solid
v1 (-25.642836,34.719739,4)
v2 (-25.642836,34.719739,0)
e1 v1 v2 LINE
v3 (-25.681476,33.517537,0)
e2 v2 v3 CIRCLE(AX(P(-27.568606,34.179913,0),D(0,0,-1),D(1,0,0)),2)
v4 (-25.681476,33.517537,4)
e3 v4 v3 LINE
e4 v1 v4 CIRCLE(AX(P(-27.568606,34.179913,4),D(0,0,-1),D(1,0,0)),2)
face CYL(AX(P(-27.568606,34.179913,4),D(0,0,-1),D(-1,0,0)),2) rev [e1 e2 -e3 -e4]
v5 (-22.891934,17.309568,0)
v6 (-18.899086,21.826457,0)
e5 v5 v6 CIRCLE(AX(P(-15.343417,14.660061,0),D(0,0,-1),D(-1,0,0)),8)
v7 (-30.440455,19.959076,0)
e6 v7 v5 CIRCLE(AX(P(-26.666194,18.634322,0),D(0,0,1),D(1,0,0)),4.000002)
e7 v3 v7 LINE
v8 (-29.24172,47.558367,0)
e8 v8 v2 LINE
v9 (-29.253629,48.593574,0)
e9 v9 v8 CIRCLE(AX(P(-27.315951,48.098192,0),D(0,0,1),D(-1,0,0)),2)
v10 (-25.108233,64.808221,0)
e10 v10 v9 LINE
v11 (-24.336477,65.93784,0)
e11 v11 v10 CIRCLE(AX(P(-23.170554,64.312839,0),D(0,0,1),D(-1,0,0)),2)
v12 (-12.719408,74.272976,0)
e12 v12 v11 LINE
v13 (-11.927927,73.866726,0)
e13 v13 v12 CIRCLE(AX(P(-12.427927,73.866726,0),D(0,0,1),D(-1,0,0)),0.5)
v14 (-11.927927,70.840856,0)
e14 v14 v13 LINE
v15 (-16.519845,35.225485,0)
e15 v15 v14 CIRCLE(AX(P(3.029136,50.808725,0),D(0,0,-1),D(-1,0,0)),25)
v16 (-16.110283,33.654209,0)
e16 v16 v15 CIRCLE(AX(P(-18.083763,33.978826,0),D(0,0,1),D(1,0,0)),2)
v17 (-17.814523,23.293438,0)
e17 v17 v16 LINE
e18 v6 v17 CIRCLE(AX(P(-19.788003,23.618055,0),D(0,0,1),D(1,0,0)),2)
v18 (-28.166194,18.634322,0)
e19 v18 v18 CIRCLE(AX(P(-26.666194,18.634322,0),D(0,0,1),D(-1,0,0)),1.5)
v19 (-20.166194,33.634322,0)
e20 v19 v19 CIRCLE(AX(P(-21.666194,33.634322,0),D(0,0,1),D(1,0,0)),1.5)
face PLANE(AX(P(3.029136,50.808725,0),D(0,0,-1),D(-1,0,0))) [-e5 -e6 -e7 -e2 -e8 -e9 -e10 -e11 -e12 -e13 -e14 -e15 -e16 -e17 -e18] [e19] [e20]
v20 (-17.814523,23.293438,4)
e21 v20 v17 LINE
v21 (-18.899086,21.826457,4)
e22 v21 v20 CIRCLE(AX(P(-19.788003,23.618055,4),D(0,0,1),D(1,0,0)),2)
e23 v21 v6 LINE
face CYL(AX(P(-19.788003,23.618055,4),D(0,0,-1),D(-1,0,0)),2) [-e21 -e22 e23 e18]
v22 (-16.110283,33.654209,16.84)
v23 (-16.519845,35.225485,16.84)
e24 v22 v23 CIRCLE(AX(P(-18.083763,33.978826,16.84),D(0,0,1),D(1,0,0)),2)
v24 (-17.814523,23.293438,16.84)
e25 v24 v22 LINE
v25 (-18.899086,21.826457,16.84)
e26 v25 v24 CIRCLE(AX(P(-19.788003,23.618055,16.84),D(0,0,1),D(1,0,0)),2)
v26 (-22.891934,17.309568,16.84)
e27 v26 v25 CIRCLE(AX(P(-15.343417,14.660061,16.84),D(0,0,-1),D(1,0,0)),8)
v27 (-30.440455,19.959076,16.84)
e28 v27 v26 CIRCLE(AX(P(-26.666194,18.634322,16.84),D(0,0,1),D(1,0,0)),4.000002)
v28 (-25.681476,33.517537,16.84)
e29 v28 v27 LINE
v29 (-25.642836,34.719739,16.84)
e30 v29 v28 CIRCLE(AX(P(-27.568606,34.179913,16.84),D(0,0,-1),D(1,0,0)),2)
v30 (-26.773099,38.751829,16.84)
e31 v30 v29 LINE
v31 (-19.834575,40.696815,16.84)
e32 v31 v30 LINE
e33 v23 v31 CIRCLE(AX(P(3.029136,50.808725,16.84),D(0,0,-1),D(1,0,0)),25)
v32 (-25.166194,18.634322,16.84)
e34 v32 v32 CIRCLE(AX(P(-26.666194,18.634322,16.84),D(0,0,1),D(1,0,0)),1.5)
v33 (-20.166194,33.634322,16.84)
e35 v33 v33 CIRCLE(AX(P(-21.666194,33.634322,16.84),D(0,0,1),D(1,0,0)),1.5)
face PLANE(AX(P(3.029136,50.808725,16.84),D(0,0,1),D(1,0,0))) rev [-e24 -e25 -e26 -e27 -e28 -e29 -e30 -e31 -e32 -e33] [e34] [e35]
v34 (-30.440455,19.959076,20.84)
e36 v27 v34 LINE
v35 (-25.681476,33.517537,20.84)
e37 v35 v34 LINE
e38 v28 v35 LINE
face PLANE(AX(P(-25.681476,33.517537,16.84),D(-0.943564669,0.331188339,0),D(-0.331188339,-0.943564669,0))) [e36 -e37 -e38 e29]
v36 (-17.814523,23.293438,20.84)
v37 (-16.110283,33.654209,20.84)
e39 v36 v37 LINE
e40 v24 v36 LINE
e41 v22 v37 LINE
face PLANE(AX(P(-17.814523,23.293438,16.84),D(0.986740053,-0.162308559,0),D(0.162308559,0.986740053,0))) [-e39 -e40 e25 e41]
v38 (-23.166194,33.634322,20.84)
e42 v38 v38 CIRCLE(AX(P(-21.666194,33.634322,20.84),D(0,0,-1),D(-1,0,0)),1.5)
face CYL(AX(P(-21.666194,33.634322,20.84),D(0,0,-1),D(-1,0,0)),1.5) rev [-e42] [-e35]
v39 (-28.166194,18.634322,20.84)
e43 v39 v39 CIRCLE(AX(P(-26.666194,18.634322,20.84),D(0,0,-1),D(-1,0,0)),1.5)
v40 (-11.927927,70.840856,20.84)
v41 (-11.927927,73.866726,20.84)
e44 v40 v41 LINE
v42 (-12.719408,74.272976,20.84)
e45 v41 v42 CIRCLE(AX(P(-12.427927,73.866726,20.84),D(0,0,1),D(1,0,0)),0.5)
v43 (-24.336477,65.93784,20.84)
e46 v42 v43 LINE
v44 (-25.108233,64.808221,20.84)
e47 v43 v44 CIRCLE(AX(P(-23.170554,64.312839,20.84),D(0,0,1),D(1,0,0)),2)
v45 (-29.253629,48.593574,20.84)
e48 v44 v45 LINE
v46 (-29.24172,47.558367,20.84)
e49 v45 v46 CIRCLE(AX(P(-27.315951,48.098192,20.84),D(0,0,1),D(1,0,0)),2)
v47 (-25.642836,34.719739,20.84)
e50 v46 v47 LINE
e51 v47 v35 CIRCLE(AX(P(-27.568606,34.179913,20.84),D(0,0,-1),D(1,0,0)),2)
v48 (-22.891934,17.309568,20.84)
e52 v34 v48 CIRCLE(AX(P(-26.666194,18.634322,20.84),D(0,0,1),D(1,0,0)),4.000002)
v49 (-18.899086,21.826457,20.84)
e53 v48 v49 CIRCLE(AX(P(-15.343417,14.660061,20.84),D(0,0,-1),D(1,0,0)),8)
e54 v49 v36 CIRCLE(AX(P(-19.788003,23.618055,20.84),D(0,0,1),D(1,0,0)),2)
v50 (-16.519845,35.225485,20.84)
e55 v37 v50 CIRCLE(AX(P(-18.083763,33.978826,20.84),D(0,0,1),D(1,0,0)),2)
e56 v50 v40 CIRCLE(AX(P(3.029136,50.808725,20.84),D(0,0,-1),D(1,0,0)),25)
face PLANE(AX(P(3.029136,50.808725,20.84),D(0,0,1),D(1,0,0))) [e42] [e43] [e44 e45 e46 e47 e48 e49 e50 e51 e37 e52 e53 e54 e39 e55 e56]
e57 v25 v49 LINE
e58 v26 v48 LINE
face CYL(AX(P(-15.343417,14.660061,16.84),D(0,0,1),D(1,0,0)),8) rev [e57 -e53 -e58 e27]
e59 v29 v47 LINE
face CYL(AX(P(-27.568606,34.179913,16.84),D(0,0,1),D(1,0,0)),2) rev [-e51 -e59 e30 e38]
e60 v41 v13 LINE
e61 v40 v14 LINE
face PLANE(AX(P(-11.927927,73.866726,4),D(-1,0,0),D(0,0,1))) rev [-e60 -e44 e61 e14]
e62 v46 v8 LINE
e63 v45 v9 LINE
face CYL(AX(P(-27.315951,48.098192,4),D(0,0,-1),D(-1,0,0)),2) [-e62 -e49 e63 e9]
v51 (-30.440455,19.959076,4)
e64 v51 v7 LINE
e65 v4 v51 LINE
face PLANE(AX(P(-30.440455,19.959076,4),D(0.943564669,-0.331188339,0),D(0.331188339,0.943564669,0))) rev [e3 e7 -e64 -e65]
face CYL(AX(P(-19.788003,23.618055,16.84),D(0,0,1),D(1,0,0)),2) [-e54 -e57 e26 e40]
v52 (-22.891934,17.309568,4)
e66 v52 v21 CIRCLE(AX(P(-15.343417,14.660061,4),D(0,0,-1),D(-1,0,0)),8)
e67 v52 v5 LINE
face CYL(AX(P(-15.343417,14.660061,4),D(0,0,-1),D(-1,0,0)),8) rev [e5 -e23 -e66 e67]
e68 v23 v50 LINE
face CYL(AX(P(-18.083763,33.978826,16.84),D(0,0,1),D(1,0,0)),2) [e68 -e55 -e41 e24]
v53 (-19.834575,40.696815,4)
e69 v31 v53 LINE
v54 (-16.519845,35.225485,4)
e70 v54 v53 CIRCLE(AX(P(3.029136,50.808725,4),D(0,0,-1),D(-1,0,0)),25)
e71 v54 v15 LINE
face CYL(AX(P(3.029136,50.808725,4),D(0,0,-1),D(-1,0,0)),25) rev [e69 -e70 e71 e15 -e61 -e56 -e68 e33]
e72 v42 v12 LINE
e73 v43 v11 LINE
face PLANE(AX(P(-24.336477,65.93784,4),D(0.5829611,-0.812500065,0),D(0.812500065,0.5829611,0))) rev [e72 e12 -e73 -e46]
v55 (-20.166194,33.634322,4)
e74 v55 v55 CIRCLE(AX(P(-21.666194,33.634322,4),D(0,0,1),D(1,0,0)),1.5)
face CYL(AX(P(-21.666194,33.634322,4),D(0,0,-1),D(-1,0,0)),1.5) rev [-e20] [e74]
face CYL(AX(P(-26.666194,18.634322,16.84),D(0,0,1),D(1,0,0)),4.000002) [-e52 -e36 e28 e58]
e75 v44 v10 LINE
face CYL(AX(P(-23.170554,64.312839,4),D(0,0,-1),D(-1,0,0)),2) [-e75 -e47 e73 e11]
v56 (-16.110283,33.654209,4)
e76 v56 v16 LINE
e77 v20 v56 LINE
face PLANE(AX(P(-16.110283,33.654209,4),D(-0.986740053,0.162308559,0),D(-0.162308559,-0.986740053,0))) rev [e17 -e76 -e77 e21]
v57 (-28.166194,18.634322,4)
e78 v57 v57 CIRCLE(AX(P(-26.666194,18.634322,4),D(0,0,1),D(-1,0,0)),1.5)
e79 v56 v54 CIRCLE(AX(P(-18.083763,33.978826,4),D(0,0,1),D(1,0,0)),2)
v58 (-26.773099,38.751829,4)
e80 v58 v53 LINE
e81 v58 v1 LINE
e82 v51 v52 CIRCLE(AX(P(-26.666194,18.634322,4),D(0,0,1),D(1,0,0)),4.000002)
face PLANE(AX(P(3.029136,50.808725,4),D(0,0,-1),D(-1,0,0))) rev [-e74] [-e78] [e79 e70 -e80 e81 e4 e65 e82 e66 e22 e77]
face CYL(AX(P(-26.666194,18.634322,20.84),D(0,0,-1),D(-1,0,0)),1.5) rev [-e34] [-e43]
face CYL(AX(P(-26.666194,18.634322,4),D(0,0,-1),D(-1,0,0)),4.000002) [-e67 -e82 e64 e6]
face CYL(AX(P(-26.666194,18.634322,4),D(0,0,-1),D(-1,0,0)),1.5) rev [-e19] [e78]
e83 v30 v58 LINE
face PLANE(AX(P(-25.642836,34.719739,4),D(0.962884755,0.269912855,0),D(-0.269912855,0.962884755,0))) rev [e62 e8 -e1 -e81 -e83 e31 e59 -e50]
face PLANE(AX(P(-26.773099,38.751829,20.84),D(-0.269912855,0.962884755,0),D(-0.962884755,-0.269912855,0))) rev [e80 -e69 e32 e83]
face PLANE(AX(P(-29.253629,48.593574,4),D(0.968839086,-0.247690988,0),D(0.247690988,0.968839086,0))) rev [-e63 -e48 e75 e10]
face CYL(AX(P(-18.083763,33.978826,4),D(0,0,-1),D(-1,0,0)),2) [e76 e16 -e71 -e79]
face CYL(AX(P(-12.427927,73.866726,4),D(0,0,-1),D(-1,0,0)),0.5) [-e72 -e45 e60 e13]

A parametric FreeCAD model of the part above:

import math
import FreeCAD as App
import Part
import Sketcher

doc = App.newDocument("Part")
body = doc.addObject("PartDesign::Body", "Body")

sketch1 = body.newObject("Sketcher::SketchObject", "Sketch")
sketch1.AttachmentSupport = (doc.getObject("XY_Plane"), [""])
sketch1.MapMode = "FlatFace"
sketch1.addGeometry([
    Part.LineSegment(App.Vector(-17.814523, 23.293438, 0), App.Vector(-16.110283, 33.654209, 0)),
    Part.ArcOfCircle(Part.Circle(App.Vector(-18.083763, 33.978826, 0), App.Vector(0, 0, 1), 2), math.radians(-9.340919), math.radians(38.55969)),
    Part.ArcOfCircle(Part.Circle(App.Vector(3.029136, 50.808725, 0), App.Vector(0, 0, 1), 25), math.radians(126.746991), math.radians(218.55969)),
    Part.LineSegment(App.Vector(-11.927927, 70.840856, 0), App.Vector(-11.927927, 73.866726, 0)),
    Part.ArcOfCircle(Part.Circle(App.Vector(-12.427927, 73.866726, 0), App.Vector(0, 0, 1), 0.5), math.radians(0), math.radians(125.659081)),
    Part.LineSegment(App.Vector(-12.719408, 74.272976, 0), App.Vector(-24.336477, 65.93784, 0)),
    Part.ArcOfCircle(Part.Circle(App.Vector(-23.170554, 64.312839, 0), App.Vector(0, 0, 1), 2), math.radians(125.659081), math.radians(165.659081)),
    Part.LineSegment(App.Vector(-25.108233, 64.808221, 0), App.Vector(-29.253629, 48.593574, 0)),
    Part.ArcOfCircle(Part.Circle(App.Vector(-27.315951, 48.098192, 0), App.Vector(0, 0, 1), 2), math.radians(165.659081), math.radians(195.659081)),
    Part.LineSegment(App.Vector(-29.24172, 47.558367, 0), App.Vector(-25.642836, 34.719739, 0)),
    Part.ArcOfCircle(Part.Circle(App.Vector(-27.568606, 34.179913, 0), App.Vector(0, 0, 1), 2), math.radians(-19.340919), math.radians(15.659081)),
    Part.LineSegment(App.Vector(-25.681476, 33.517537, 0), App.Vector(-30.440455, 19.959076, 0)),
    Part.ArcOfCircle(Part.Circle(App.Vector(-26.666194, 18.634322, 0), App.Vector(0, 0, 1), 4.000002), math.radians(160.659081), math.radians(340.659081)),
    Part.ArcOfCircle(Part.Circle(App.Vector(-15.343417, 14.660061, 0), App.Vector(0, 0, 1), 8), math.radians(116.388706), math.radians(160.659081)),
    Part.ArcOfCircle(Part.Circle(App.Vector(-19.788003, 23.618055, 0), App.Vector(0, 0, 1), 2), math.radians(-63.611294), math.radians(-9.340919)),
    Part.Circle(App.Vector(-26.666194, 18.634322, 0), App.Vector(0, 0, 1), 1.5),
    Part.Circle(App.Vector(-21.666194, 33.634322, 0), App.Vector(0, 0, 1), 1.5),
], False)
sketch1.addConstraint([
    Sketcher.Constraint("Tangent", 0, 2, 1, 1),
    Sketcher.Constraint("Tangent", 1, 2, 2, 2),
    Sketcher.Constraint("Coincident", 2, 1, 3, 1),
    Sketcher.Constraint("Tangent", 3, 2, 4, 1),
    Sketcher.Constraint("Tangent", 4, 2, 5, 1),
    Sketcher.Constraint("Tangent", 5, 2, 6, 1),
    Sketcher.Constraint("Tangent", 6, 2, 7, 1),
    Sketcher.Constraint("Tangent", 7, 2, 8, 1),
    Sketcher.Constraint("Tangent", 8, 2, 9, 1),
    Sketcher.Constraint("Tangent", 9, 2, 10, 2),
    Sketcher.Constraint("Tangent", 10, 1, 11, 1),
    Sketcher.Constraint("Tangent", 11, 2, 12, 1),
    Sketcher.Constraint("Tangent", 12, 2, 13, 2),
    Sketcher.Constraint("Tangent", 13, 1, 14, 1),
    Sketcher.Constraint("Tangent", 14, 2, 0, 1),
    Sketcher.Constraint("Vertical", 3),
    Sketcher.Constraint("Coincident", 15, 3, 12, 3),
    Sketcher.Constraint("Equal", 1, 6),
    Sketcher.Constraint("Equal", 6, 8),
    Sketcher.Constraint("Equal", 8, 10),
    Sketcher.Constraint("Equal", 10, 14),
    Sketcher.Constraint("Equal", 15, 16),
    Sketcher.Constraint("Diameter", 15, 3.0),
    Sketcher.Constraint("Radius", 1, 2.0),
    Sketcher.Constraint("Radius", 2, 25.0),
    Sketcher.Constraint("Radius", 12, 4.000002),
    Sketcher.Constraint("Radius", 13, 8.0),
    Sketcher.Constraint("Radius", 4, 0.5),
    Sketcher.Constraint("DistanceX", 12, 3, 16, 3, 5.0),
    Sketcher.Constraint("DistanceY", 12, 3, 16, 3, 15.0),
    Sketcher.Constraint("Distance", 0, 10.5),
    Sketcher.Constraint("DistanceY", 2, 3, 4, 3, 23.058001),
    Sketcher.Constraint("DistanceY", 6, 3, 5, 2, 1.625),
    Sketcher.Constraint("DistanceY", 3, 1, 3, 2, 3.02587),
    Sketcher.Constraint("DistanceX", 1, 3, 2, 3, 21.112899),
    Sketcher.Constraint("DistanceY", 13, 1, 14, 3, 1.791599),
    Sketcher.Constraint("Distance", 5, 14.29793),
    Sketcher.Constraint("Distance", 7, 16.736161),
    Sketcher.Constraint("DistanceY", -1, 1, 6, 3, 64.312839),
    Sketcher.Constraint("DistanceX", 8, 3, -1, 1, 27.315951),
    Sketcher.Constraint("DistanceY", -1, 1, 13, 3, 14.660061),
    Sketcher.Constraint("DistanceY", -1, 1, 6, 2, 64.808221),
    Sketcher.Constraint("DistanceX", 8, 2, -1, 1, 29.24172),
    Sketcher.Constraint("DistanceY", -1, 1, 9, 2, 34.719739),
    Sketcher.Constraint("DistanceY", -1, 1, 12, 2, 17.309568),
])
pad1 = body.newObject("PartDesign::Pad", "Pad")
pad1.Profile = sketch1
pad1.Length = 4

sketch2 = body.newObject("Sketcher::SketchObject", "Sketch001")
sketch2.AttachmentSupport = (doc.getObject("XY_Plane"), [""])
sketch2.MapMode = "FlatFace"
sketch2.addGeometry([
    Part.LineSegment(App.Vector(-26.773099, 38.751829, 0), App.Vector(-19.834575, 40.696815, 0)),
    Part.ArcOfCircle(Part.Circle(App.Vector(3.029136, 50.808725, 0), App.Vector(0, 0, 1), 25), math.radians(126.746991), math.radians(203.858321)),
    Part.LineSegment(App.Vector(-11.927927, 70.840856, 0), App.Vector(-11.927927, 73.866726, 0)),
    Part.ArcOfCircle(Part.Circle(App.Vector(-12.427927, 73.866726, 0), App.Vector(0, 0, 1), 0.5), math.radians(0), math.radians(125.659081)),
    Part.LineSegment(App.Vector(-12.719408, 74.272976, 0), App.Vector(-24.336477, 65.93784, 0)),
    Part.ArcOfCircle(Part.Circle(App.Vector(-23.170554, 64.312839, 0), App.Vector(0, 0, 1), 2), math.radians(125.659081), math.radians(165.659081)),
    Part.LineSegment(App.Vector(-25.108233, 64.808221, 0), App.Vector(-29.253629, 48.593574, 0)),
    Part.ArcOfCircle(Part.Circle(App.Vector(-27.315951, 48.098192, 0), App.Vector(0, 0, 1), 2), math.radians(165.659081), math.radians(195.659081)),
    Part.LineSegment(App.Vector(-29.24172, 47.558367, 0), App.Vector(-26.773099, 38.751829, 0)),
], False)
sketch2.addConstraint([
    Sketcher.Constraint("Coincident", 0, 2, 1, 2),
    Sketcher.Constraint("Coincident", 1, 1, 2, 1),
    Sketcher.Constraint("Coincident", 2, 2, 3, 1),
    Sketcher.Constraint("Coincident", 3, 2, 4, 1),
    Sketcher.Constraint("Coincident", 4, 2, 5, 1),
    Sketcher.Constraint("Coincident", 5, 2, 6, 1),
    Sketcher.Constraint("Coincident", 6, 2, 7, 1),
    Sketcher.Constraint("Coincident", 7, 2, 8, 1),
    Sketcher.Constraint("Coincident", 8, 2, 0, 1),
    Sketcher.Constraint("Vertical", 2),
    Sketcher.Constraint("Radius", 1, 25.0),
    Sketcher.Constraint("Radius", 5, 2.0),
    Sketcher.Constraint("Radius", 7, 2.0),
    Sketcher.Constraint("Radius", 3, 0.5),
    Sketcher.Constraint("DistanceY", 1, 3, 3, 3, 23.058001),
    Sketcher.Constraint("DistanceY", 1, 3, 2, 2, 23.058001),
    Sketcher.Constraint("DistanceY", 5, 3, 4, 2, 1.625),
    Sketcher.Constraint("DistanceY", 2, 1, 2, 2, 3.02587),
    Sketcher.Constraint("DistanceX", 8, 2, -1, 1, 26.773099),
    Sketcher.Constraint("Distance", 4, 14.29793),
    Sketcher.Constraint("Distance", 6, 16.736161),
    Sketcher.Constraint("DistanceY", -1, 1, 5, 3, 64.312839),
    Sketcher.Constraint("DistanceX", 7, 3, -1, 1, 27.315951),
    Sketcher.Constraint("DistanceY", -1, 1, 5, 2, 64.808221),
    Sketcher.Constraint("DistanceX", 6, 2, -1, 1, 29.253629),
    Sketcher.Constraint("DistanceX", 7, 2, -1, 1, 29.24172),
    Sketcher.Constraint("DistanceY", -1, 1, 8, 2, 38.751829),
    Sketcher.Constraint("DistanceX", 5, 3, 1, 3, 26.19969),
    Sketcher.Constraint("DistanceX", 5, 3, 0, 2, 3.335979),
    Sketcher.Constraint("DistanceX", 3, 2, 3, 3, 0.291481),
    Sketcher.Constraint("DistanceY", 0, 2, 6, 2, 7.89676),
])
pad2 = body.newObject("PartDesign::Pad", "Pad001")
pad2.Profile = sketch2
pad2.Length = 20.84

sketch3 = body.newObject("Sketcher::SketchObject", "Sketch002")
sketch3.AttachmentSupport = (doc.getObject("XY_Plane"), [""])
sketch3.MapMode = "FlatFace"
sketch3.AttachmentOffset = App.Placement(App.Vector(0, 0, 16.84), App.Rotation())
sketch3.addGeometry([
    Part.LineSegment(App.Vector(-19.834575, 40.696815, 0), App.Vector(-26.773099, 38.751829, 0)),
    Part.LineSegment(App.Vector(-26.773099, 38.751829, 0), App.Vector(-25.642836, 34.719739, 0)),
    Part.ArcOfCircle(Part.Circle(App.Vector(-27.568606, 34.179913, 0), App.Vector(0, 0, 1), 2), math.radians(-19.340919), math.radians(15.659081)),
    Part.LineSegment(App.Vector(-25.681476, 33.517537, 0), App.Vector(-30.440455, 19.959076, 0)),
    Part.ArcOfCircle(Part.Circle(App.Vector(-26.666194, 18.634322, 0), App.Vector(0, 0, 1), 4.000002), math.radians(160.659081), math.radians(340.659081)),
    Part.ArcOfCircle(Part.Circle(App.Vector(-15.343417, 14.660061, 0), App.Vector(0, 0, 1), 8), math.radians(116.388706), math.radians(160.659081)),
    Part.ArcOfCircle(Part.Circle(App.Vector(-19.788003, 23.618055, 0), App.Vector(0, 0, 1), 2), math.radians(-63.611294), math.radians(-9.340919)),
    Part.LineSegment(App.Vector(-17.814523, 23.293438, 0), App.Vector(-16.110283, 33.654209, 0)),
    Part.ArcOfCircle(Part.Circle(App.Vector(-18.083763, 33.978826, 0), App.Vector(0, 0, 1), 2), math.radians(-9.340919), math.radians(38.55969)),
    Part.ArcOfCircle(Part.Circle(App.Vector(3.029136, 50.808725, 0), App.Vector(0, 0, 1), 25), math.radians(-156.141679), math.radians(-141.44031)),
], False)
sketch3.addConstraint([
    Sketcher.Constraint("Coincident", 0, 2, 1, 1),
    Sketcher.Constraint("Tangent", 1, 2, 2, 2),
    Sketcher.Constraint("Tangent", 2, 1, 3, 1),
    Sketcher.Constraint("Tangent", 3, 2, 4, 1),
    Sketcher.Constraint("Tangent", 4, 2, 5, 2),
    Sketcher.Constraint("Tangent", 5, 1, 6, 1),
    Sketcher.Constraint("Tangent", 6, 2, 7, 1),
    Sketcher.Constraint("Tangent", 7, 2, 8, 1),
    Sketcher.Constraint("Tangent", 8, 2, 9, 2),
    Sketcher.Constraint("Coincident", 9, 1, 0, 1),
    Sketcher.Constraint("Equal", 2, 6),
    Sketcher.Constraint("Equal", 6, 8),
    Sketcher.Constraint("Perpendicular", 0, 1),
    Sketcher.Constraint("Radius", 2, 2.0),
    Sketcher.Constraint("Radius", 4, 4.000002),
    Sketcher.Constraint("Radius", 5, 8.0),
    Sketcher.Constraint("Radius", 9, 25.0),
    Sketcher.Constraint("Distance", 7, 10.5),
    Sketcher.Constraint("DistanceX", 0, 2, -1, 1, 26.773099),
    Sketcher.Constraint("DistanceX", 8, 3, 9, 3, 21.112899),
    Sketcher.Constraint("DistanceY", 5, 1, 6, 3, 1.791599),
    Sketcher.Constraint("Distance", 1, 4.187511),
    Sketcher.Constraint("DistanceY", -1, 1, 5, 3, 14.660061),
    Sketcher.Constraint("DistanceY", -1, 1, 0, 2, 38.751829),
    Sketcher.Constraint("DistanceY", -1, 1, 1, 2, 34.719739),
    Sketcher.Constraint("DistanceY", -1, 1, 4, 2, 17.309568),
    Sketcher.Constraint("DistanceY", -1, 1, 6, 2, 23.293438),
    Sketcher.Constraint("DistanceX", 2, 3, 4, 3, 0.902411),
])
pad3 = body.newObject("PartDesign::Pad", "Pad002")
pad3.Profile = sketch3
pad3.Length = 4

sketch4 = body.newObject("Sketcher::SketchObject", "Sketch003")
sketch4.AttachmentSupport = (doc.getObject("XY_Plane"), [""])
sketch4.MapMode = "FlatFace"
sketch4.addGeometry([
    Part.Circle(App.Vector(-21.666194, 33.634322, 0), App.Vector(0, 0, 1), 1.5),
    Part.Circle(App.Vector(-26.666194, 18.634322, 0), App.Vector(0, 0, 1), 1.5),
], False)
sketch4.addConstraint([
    Sketcher.Constraint("Equal", 0, 1),
    Sketcher.Constraint("Diameter", 0, 3.0),
    Sketcher.Constraint("DistanceX", 1, 3, 0, 3, 5.0),
    Sketcher.Constraint("DistanceY", 1, 3, 0, 3, 15.0),
    Sketcher.Constraint("DistanceX", 0, 3, -1, 1, 21.666194),
    Sketcher.Constraint("DistanceY", -1, 1, 0, 3, 33.634322),
])
pocket1 = body.newObject("PartDesign::Pocket", "Pocket")
pocket1.Profile = sketch4
pocket1.Type = "ThroughAll"
pocket1.Reversed = True

doc.recompute()
